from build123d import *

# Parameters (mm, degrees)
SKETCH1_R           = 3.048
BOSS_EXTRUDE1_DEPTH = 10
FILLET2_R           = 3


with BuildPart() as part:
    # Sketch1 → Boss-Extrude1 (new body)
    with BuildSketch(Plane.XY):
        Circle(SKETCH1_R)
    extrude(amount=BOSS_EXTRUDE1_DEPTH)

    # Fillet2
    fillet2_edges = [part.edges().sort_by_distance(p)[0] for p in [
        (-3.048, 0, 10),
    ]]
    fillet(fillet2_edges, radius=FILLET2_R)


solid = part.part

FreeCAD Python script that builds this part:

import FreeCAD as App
import Part
import Sketcher

V = App.Vector


def edges_at(feature, points):
    """Names of the edges that pass closest to the given points."""
    edges = feature.Shape.Edges
    near = lambda p: min(range(len(edges)), key=lambda i: edges[i].distToShape(Part.Vertex(*p))[0])
    return sorted({f"Edge{near(p) + 1}" for p in points})

doc = App.newDocument("Part")
body = doc.addObject("PartDesign::Body", "Body")

sketch1 = doc.addObject("Sketcher::SketchObject", "Sketch")
body.addObject(sketch1)
sketch1.AttachmentSupport = (doc.XY_Plane, [""])
sketch1.MapMode = "FlatFace"
sketch1.addGeometry(Part.Circle(V(0, 0, 0), V(0, 0, 1), 3), False)
sketch1.addConstraint(Sketcher.Constraint("Coincident", 0, 3, -1, 1))
sketch1.addConstraint(Sketcher.Constraint("Diameter", 0, 6.096))
pad1 = doc.addObject("PartDesign::Pad", "Pad")
body.addObject(pad1)
pad1.Profile = sketch1
pad1.Length = 10
doc.recompute()

fillet = doc.addObject("PartDesign::Fillet", "Fillet")
body.addObject(fillet)
fillet.Base = (pad1, edges_at(pad1, [(-3.048, 0, 10)]))
fillet.Radius = 3

doc.recompute()
